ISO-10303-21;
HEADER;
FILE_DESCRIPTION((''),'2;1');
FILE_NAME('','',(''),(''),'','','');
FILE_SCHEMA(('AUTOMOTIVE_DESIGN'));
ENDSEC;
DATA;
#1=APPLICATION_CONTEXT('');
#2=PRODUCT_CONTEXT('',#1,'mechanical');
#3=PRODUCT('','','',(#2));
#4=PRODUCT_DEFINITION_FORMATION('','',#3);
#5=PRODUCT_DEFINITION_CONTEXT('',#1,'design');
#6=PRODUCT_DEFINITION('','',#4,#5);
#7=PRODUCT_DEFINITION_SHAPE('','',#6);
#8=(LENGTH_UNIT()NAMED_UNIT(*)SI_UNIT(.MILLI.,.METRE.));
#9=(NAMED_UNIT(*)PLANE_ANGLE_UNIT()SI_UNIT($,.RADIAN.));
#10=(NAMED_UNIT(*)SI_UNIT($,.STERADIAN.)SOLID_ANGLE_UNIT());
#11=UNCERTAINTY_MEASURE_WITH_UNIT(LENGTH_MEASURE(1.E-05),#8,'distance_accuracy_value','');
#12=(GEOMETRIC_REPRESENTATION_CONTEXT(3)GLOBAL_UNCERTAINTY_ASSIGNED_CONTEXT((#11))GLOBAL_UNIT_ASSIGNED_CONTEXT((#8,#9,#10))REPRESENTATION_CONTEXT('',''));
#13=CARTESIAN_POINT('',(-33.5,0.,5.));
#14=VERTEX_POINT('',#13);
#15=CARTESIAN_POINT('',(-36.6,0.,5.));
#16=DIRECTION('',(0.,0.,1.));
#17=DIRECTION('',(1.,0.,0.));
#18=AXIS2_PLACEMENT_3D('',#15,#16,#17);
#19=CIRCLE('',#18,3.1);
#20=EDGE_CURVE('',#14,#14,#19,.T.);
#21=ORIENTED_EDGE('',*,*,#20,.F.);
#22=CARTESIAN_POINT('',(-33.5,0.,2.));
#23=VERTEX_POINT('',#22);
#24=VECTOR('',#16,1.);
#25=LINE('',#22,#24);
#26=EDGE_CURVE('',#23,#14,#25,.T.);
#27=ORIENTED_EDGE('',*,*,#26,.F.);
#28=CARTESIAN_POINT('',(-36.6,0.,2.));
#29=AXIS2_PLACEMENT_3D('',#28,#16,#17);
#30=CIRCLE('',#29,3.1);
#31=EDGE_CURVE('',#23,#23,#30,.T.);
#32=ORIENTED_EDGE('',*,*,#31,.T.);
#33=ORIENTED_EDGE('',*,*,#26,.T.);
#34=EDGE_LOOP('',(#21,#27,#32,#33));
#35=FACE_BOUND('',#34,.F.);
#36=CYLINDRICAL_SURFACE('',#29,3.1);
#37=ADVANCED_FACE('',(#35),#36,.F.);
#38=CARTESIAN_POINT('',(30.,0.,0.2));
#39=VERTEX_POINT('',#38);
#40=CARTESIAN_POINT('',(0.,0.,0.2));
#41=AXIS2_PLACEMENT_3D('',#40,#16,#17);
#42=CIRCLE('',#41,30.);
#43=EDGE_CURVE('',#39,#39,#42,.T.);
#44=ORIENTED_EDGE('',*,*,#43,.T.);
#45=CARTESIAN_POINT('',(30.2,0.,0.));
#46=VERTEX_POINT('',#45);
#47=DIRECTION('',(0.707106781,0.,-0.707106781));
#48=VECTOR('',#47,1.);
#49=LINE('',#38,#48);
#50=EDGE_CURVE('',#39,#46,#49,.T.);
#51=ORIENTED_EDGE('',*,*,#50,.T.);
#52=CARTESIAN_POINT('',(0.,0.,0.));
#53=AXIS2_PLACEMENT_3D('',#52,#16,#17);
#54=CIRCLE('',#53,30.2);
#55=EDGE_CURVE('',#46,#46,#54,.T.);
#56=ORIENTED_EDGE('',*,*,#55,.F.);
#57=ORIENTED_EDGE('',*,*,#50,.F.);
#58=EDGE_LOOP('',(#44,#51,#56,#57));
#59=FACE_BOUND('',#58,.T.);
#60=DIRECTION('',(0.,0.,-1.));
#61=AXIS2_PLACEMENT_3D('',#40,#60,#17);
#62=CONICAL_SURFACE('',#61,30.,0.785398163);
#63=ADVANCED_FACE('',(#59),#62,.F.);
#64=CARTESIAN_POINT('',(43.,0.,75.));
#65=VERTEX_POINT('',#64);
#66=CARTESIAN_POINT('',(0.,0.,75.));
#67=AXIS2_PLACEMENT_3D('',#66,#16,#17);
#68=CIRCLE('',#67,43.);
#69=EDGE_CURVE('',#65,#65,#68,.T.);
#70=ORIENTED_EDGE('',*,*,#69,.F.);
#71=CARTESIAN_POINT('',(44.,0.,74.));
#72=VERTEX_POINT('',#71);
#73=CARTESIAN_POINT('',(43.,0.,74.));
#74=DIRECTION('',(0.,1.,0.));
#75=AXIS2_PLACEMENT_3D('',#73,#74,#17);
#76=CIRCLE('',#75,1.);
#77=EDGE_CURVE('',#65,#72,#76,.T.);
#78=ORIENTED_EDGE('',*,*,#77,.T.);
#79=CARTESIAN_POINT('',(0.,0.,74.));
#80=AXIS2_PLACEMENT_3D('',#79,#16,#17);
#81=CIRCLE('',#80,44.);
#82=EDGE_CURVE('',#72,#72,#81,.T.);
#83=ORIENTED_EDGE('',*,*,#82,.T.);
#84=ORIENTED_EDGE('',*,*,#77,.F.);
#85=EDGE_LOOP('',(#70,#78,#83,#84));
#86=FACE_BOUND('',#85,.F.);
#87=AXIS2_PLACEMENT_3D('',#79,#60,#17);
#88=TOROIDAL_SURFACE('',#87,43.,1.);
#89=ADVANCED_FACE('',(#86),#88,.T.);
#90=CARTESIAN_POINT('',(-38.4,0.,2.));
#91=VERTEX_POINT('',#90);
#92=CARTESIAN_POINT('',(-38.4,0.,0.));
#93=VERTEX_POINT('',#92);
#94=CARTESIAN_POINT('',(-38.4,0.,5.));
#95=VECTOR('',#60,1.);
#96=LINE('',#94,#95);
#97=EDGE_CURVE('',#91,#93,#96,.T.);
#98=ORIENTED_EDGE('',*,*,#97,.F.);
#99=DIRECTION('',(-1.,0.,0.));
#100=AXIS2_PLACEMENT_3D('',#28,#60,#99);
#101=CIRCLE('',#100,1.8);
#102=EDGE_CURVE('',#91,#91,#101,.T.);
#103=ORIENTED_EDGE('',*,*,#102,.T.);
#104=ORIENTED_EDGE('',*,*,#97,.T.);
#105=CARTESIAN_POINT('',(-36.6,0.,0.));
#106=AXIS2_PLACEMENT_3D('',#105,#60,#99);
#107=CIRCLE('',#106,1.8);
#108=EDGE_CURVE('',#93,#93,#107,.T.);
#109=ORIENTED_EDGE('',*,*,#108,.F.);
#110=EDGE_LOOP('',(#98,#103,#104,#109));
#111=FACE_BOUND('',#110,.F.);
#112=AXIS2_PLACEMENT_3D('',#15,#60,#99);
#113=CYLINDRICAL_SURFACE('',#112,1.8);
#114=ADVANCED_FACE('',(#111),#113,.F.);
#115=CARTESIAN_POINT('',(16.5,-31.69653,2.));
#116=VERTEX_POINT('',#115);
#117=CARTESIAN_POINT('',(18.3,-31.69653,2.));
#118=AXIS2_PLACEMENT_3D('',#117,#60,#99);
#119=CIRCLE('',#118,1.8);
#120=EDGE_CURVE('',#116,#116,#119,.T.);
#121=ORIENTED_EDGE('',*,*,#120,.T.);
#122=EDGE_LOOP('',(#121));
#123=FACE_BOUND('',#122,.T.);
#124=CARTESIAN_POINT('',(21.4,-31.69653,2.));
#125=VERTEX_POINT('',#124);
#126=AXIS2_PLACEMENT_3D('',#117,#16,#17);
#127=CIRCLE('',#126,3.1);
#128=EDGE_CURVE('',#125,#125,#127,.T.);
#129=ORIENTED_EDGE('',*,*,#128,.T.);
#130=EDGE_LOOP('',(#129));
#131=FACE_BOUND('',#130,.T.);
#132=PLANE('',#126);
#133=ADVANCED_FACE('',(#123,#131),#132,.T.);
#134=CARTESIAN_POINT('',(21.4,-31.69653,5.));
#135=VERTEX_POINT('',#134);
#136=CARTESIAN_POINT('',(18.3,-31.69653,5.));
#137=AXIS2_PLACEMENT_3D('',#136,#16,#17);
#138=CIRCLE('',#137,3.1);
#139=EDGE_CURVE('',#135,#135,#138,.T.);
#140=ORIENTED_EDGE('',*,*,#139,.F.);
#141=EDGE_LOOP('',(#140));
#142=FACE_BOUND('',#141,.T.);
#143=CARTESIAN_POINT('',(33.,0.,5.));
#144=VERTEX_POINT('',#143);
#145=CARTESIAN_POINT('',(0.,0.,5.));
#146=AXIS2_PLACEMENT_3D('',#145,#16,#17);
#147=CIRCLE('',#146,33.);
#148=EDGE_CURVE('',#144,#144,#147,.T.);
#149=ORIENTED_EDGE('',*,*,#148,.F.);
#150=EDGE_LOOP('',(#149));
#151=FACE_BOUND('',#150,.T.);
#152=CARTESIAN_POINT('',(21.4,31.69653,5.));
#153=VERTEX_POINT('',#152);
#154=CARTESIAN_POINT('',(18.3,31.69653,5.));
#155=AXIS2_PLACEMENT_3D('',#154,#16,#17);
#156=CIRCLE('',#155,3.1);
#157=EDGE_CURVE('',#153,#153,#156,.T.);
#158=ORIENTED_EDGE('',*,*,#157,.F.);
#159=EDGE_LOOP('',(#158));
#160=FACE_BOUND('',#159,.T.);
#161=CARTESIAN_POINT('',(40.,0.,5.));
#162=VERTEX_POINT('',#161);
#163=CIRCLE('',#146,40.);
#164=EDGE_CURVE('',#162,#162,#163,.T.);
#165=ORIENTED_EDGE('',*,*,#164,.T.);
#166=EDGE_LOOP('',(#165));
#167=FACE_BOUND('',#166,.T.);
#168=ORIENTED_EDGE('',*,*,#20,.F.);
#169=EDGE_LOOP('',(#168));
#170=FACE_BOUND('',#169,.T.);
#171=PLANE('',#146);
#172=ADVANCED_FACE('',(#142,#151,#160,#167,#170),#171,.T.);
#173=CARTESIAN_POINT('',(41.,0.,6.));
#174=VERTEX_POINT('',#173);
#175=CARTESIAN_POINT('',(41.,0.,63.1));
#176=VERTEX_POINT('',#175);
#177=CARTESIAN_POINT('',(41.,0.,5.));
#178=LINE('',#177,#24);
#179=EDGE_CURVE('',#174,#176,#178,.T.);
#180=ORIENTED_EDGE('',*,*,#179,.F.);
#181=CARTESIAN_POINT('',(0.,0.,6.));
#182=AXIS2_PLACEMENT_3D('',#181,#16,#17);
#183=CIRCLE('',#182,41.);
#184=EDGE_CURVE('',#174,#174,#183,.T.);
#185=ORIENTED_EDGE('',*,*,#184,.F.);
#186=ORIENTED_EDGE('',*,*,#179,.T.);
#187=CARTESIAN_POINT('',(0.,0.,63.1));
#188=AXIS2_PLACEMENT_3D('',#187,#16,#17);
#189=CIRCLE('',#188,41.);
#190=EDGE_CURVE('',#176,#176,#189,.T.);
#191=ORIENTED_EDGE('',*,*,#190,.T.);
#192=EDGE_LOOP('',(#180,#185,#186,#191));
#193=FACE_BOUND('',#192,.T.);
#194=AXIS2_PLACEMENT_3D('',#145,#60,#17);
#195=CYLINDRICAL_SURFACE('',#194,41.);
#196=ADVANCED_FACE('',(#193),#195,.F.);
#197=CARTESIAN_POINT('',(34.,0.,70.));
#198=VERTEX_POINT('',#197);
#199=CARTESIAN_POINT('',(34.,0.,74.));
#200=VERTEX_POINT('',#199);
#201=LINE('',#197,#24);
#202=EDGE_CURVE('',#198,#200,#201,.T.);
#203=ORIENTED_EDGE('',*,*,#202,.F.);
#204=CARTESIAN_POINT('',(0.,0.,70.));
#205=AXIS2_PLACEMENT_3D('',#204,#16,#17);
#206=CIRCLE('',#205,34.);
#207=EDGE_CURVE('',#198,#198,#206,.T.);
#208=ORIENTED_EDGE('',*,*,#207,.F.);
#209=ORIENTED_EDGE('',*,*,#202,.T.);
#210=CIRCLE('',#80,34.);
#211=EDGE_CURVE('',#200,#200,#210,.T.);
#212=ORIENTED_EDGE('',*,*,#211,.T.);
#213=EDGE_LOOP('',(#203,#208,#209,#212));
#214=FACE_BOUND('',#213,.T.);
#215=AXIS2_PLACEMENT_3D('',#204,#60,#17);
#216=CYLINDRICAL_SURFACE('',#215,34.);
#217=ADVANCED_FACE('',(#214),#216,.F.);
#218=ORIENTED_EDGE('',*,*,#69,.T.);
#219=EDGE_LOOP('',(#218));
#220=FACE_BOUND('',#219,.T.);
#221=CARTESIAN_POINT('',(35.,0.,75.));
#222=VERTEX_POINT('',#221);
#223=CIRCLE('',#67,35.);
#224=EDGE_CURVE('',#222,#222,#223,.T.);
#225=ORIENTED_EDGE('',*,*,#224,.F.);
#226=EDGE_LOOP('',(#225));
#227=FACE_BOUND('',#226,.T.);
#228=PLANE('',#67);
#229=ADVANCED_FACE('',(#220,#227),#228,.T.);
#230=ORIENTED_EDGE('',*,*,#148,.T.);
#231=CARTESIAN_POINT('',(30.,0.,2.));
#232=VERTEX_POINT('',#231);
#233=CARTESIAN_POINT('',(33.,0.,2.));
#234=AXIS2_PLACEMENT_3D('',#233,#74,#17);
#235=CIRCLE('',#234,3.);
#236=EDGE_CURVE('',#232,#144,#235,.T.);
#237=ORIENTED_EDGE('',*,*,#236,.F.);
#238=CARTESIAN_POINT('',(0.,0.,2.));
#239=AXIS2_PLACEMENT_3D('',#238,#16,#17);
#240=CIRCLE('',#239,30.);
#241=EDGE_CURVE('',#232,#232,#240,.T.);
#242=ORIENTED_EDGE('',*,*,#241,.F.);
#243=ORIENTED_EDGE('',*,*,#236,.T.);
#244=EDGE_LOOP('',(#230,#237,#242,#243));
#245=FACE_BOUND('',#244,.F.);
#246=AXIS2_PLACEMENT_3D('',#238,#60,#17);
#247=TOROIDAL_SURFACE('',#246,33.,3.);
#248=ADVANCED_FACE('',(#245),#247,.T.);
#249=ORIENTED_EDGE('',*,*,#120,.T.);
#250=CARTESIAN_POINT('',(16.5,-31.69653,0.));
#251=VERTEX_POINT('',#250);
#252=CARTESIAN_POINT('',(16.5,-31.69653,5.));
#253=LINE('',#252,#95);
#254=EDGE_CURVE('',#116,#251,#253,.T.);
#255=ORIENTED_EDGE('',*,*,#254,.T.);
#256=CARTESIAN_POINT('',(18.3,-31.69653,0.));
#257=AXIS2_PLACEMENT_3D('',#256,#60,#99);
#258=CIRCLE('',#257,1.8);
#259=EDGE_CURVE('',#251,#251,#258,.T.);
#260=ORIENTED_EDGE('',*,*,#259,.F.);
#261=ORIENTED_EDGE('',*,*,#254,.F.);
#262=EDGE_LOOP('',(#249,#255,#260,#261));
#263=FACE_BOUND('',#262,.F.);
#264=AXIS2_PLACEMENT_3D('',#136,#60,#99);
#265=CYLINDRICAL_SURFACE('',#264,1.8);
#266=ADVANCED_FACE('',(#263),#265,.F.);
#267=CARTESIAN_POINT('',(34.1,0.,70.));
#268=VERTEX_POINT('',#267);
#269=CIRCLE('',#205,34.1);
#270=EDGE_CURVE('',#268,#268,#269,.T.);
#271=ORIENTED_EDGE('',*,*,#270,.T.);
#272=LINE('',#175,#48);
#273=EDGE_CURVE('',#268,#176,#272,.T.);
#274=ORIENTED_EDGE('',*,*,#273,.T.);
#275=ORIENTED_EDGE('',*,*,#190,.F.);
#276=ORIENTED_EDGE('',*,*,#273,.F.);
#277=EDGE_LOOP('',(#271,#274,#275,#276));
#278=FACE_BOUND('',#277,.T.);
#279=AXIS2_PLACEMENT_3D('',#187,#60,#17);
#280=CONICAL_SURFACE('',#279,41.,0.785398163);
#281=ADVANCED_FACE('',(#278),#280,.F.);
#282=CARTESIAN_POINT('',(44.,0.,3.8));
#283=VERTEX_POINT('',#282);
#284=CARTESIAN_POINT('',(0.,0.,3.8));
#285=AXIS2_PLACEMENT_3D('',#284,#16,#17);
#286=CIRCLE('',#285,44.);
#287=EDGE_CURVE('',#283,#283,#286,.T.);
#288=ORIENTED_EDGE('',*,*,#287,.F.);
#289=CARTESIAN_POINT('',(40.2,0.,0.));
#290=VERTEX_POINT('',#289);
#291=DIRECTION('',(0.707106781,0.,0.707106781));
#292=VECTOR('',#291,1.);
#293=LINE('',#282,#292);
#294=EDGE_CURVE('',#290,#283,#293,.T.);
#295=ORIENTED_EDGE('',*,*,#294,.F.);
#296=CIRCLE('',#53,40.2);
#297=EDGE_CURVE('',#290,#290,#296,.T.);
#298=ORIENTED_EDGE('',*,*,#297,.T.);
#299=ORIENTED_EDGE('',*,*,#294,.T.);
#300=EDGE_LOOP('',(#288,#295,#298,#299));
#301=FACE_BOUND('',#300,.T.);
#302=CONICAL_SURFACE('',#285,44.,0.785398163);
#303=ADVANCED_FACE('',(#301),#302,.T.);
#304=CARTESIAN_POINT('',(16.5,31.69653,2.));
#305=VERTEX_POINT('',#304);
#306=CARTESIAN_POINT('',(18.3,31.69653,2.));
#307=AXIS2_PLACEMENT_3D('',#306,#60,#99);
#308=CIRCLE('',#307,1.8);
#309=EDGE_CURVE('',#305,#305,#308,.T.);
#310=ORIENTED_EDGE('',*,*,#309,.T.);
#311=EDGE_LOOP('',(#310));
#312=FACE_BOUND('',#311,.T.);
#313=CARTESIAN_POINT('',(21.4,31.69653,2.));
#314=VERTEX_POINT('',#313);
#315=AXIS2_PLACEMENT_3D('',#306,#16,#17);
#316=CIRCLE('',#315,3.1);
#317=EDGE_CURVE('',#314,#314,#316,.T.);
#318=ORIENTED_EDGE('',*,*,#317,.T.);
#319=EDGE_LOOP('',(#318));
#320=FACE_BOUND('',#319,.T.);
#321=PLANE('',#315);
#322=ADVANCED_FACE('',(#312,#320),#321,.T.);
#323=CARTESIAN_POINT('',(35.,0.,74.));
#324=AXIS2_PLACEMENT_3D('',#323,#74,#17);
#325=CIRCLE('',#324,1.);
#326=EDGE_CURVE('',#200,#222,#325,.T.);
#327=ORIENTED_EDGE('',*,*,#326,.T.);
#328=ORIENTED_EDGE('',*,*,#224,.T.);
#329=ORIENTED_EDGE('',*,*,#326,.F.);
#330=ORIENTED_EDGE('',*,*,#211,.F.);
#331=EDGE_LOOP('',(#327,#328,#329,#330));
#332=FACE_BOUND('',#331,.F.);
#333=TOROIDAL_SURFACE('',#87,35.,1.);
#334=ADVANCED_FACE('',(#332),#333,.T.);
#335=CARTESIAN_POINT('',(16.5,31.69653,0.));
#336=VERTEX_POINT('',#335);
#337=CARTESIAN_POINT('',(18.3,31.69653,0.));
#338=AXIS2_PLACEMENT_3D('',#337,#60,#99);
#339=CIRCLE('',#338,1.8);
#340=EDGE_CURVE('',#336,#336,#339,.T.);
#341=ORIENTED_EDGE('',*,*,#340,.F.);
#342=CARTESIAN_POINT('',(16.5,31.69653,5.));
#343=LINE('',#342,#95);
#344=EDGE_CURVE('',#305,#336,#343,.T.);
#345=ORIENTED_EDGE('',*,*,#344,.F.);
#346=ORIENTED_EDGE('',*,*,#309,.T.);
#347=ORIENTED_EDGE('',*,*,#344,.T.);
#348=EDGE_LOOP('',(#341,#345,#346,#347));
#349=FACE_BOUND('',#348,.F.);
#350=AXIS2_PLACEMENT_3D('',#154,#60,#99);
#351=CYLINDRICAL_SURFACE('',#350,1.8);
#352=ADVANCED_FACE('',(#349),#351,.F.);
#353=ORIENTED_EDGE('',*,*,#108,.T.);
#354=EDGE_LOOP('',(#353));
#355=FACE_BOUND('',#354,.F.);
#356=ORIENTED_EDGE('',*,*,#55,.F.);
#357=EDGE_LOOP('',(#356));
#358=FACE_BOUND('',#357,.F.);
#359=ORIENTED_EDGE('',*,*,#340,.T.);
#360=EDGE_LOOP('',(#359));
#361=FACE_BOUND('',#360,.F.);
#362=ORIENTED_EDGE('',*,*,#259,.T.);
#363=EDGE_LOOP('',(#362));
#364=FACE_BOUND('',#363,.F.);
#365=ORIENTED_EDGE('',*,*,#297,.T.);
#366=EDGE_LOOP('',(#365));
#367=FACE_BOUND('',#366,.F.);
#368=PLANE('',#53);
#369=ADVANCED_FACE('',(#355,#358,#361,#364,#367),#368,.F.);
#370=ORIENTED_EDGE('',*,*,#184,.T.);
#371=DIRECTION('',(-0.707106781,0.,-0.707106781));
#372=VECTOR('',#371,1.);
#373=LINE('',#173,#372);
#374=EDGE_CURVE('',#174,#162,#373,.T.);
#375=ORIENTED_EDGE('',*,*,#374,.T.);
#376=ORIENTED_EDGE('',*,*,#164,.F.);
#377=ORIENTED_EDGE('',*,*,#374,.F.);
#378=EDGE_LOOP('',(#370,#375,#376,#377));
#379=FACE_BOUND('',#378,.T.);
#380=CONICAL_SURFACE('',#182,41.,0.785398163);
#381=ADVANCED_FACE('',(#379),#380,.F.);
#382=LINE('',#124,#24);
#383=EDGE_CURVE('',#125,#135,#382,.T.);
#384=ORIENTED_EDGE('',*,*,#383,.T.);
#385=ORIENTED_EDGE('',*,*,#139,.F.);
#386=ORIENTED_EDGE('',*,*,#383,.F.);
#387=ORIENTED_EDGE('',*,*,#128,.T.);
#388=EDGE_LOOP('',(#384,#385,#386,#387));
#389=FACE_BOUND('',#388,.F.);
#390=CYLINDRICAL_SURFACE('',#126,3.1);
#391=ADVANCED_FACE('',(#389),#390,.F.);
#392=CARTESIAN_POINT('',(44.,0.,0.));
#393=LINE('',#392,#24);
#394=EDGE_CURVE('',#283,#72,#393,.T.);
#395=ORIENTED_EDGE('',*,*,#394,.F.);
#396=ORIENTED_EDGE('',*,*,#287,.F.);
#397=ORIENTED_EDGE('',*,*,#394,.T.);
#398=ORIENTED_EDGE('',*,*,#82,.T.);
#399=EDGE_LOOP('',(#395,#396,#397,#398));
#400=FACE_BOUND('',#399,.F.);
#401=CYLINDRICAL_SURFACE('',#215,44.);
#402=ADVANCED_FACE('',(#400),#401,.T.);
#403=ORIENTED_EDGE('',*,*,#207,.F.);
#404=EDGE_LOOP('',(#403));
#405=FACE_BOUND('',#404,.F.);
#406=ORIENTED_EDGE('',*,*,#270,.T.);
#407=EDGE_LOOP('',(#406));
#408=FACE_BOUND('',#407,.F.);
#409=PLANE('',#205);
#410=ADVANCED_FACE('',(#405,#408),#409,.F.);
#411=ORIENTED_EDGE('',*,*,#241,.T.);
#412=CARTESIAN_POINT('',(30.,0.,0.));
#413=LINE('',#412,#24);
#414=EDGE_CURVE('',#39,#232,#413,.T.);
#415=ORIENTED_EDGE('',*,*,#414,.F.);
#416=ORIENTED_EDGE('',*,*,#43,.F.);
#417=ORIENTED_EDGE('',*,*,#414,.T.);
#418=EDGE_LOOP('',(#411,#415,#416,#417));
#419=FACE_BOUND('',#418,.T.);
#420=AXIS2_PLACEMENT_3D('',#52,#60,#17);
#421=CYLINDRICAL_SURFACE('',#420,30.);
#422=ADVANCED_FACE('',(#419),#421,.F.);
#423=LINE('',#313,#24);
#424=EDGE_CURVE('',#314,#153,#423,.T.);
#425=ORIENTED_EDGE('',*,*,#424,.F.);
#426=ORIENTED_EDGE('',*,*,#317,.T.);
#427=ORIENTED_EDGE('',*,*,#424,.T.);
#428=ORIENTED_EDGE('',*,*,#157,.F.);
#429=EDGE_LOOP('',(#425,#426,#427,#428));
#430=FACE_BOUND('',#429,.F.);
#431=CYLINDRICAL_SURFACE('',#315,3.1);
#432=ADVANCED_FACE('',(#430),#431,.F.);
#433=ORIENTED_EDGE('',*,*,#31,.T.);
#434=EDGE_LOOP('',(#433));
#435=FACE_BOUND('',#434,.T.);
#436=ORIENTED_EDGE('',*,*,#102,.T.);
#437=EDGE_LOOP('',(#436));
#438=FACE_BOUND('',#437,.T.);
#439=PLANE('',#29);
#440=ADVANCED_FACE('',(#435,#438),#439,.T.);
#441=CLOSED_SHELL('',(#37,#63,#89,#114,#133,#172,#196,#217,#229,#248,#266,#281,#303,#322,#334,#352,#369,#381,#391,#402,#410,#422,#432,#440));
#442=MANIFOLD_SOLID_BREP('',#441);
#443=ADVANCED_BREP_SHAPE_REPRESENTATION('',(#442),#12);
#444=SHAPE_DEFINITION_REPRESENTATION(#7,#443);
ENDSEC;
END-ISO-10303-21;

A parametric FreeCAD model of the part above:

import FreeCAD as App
import Part
import Sketcher
from FreeCAD import Vector
Q = App.Units.Quantity


def edges_at(feature, points):
    """Names of the edges that pass closest to the given points."""
    edges = feature.Shape.Edges
    near = lambda p: min(range(len(edges)), key=lambda i: edges[i].distToShape(Part.Vertex(*p))[0])
    return sorted({f"Edge{near(p) + 1}" for p in points})

doc = App.newDocument("Part")
body = doc.addObject("PartDesign::Body", "Body")

sketch1 = body.newObject("Sketcher::SketchObject", "Sketch")
sketch1.AttachmentSupport = (doc.getObject("XY_Plane"), [""])
sketch1.MapMode = "FlatFace"
sketch1.addGeometry(Part.Circle(Vector(0, 0, 0), Vector(0, 0, 1), 44), False)
sketch1.addGeometry(Part.Circle(Vector(0, 0, 0), Vector(0, 0, 1), 30), False)
sketch1.addConstraint(Sketcher.Constraint("Coincident", 0, 3, -1, 1))
sketch1.addConstraint(Sketcher.Constraint("Coincident", 1, 3, -1, 1))
sketch1.addConstraint(Sketcher.Constraint("Diameter", 0, Q("88 mm")))
sketch1.addConstraint(Sketcher.Constraint("Diameter", 1, Q("60 mm")))
pad1 = body.newObject("PartDesign::Pad", "Pad")
pad1.Profile = sketch1
pad1.Length = 5

sketch2 = body.newObject("Sketcher::SketchObject", "Sketch001")
sketch2.AttachmentSupport = (doc.getObject("XY_Plane"), [""])
sketch2.MapMode = "FlatFace"
sketch2.AttachmentOffset = App.Placement(Vector(0, 0, 5), App.Rotation())
sketch2.addGeometry(Part.Circle(Vector(0, 0, 0), Vector(0, 0, 1), 44), False)
sketch2.addGeometry(Part.Circle(Vector(0, 0, 0), Vector(0, 0, 1), 41), False)
sketch2.addConstraint(Sketcher.Constraint("Coincident", 0, 3, -1, 1))
sketch2.addConstraint(Sketcher.Constraint("Coincident", 1, 3, -1, 1))
sketch2.addConstraint(Sketcher.Constraint("Diameter", 0, Q("88 mm")))
sketch2.addConstraint(Sketcher.Constraint("Diameter", 1, Q("82 mm")))
pad2 = body.newObject("PartDesign::Pad", "Pad001")
pad2.Profile = sketch2
pad2.Length = 65

sketch3 = body.newObject("Sketcher::SketchObject", "Sketch002")
sketch3.AttachmentSupport = (doc.getObject("XY_Plane"), [""])
sketch3.MapMode = "FlatFace"
sketch3.AttachmentOffset = App.Placement(Vector(0, 0, 70), App.Rotation())
sketch3.addGeometry(Part.Circle(Vector(0, 0, 0), Vector(0, 0, 1), 44), False)
sketch3.addGeometry(Part.Circle(Vector(0, 0, 0), Vector(0, 0, 1), 34), False)
sketch3.addConstraint(Sketcher.Constraint("Coincident", 0, 3, -1, 1))
sketch3.addConstraint(Sketcher.Constraint("Coincident", 1, 3, -1, 1))
sketch3.addConstraint(Sketcher.Constraint("Diameter", 0, Q("88 mm")))
sketch3.addConstraint(Sketcher.Constraint("Diameter", 1, Q("68 mm")))
pad3 = body.newObject("PartDesign::Pad", "Pad002")
pad3.Profile = sketch3
pad3.Length = 5

sketch4 = body.newObject("Sketcher::SketchObject", "Sketch003")
sketch4.AttachmentSupport = (doc.getObject("XY_Plane"), [""])
sketch4.MapMode = "FlatFace"
sketch4.AttachmentOffset = App.Placement(Vector(0, 0, 5), App.Rotation())
sketch4.addGeometry(Part.Circle(Vector(-36.6, 0, 0), Vector(0, 0, 1), 1.8), False)
sketch4.addGeometry(Part.Circle(Vector(18.3, 31.7, 0), Vector(0, 0, 1), 1.8), False)
sketch4.addGeometry(Part.Circle(Vector(18.3, -31.7, 0), Vector(0, 0, 1), 1.8), False)
sketch4.addConstraint(Sketcher.Constraint("Equal", 0, 1))
sketch4.addConstraint(Sketcher.Constraint("Equal", 1, 2))
sketch4.addConstraint(Sketcher.Constraint("Symmetric", 1, 3, 2, 3, -1))
sketch4.addConstraint(Sketcher.Constraint("PointOnObject", 0, 3, -1))
sketch4.addConstraint(Sketcher.Constraint("Diameter", 0, Q("3.6 mm")))
sketch4.addConstraint(Sketcher.Constraint("DistanceX", 0, 3, -1, 1, Q("36.6 mm")))
sketch4.addConstraint(Sketcher.Constraint("DistanceX", -1, 1, 1, 3, Q("18.3 mm")))
sketch4.addConstraint(Sketcher.Constraint("DistanceY", -1, 1, 1, 3, Q("31.69653 mm")))
doc.recompute()
hole = body.newObject("PartDesign::Hole", "Hole")
hole.Profile = sketch4
hole.ThreadType = "None"
hole.Diameter = 3.6
hole.DepthType = "Dimension"
hole.Depth = 5
hole.DrillPoint = "Flat"
hole.HoleCutType = "Counterbore"
hole.HoleCutDiameter = 6.2
hole.HoleCutDepth = 3
doc.recompute()

chamfer = body.newObject("PartDesign::Chamfer", "Chamfer")
chamfer.Base = (hole, edges_at(hole, [(-41, 0, 70)]))
chamfer.Size = 6.9
doc.recompute()

fillet = body.newObject("PartDesign::Fillet", "Fillet")
fillet.Base = (chamfer, edges_at(chamfer, [(-34, 0, 75), (-44, 0, 75)]))
fillet.Radius = 1
doc.recompute()

chamfer2 = body.newObject("PartDesign::Chamfer", "Chamfer001")
chamfer2.Base = (fillet, edges_at(fillet, [(-41, 0, 5)]))
chamfer2.Size = 1
doc.recompute()

chamfer3 = body.newObject("PartDesign::Chamfer", "Chamfer002")
chamfer3.Base = (chamfer2, edges_at(chamfer2, [(-44, 0, 0)]))
chamfer3.Size = 3.8
doc.recompute()

fillet2 = body.newObject("PartDesign::Fillet", "Fillet001")
fillet2.Base = (chamfer3, edges_at(chamfer3, [(-30, 0, 5)]))
fillet2.Radius = 3
doc.recompute()

chamfer4 = body.newObject("PartDesign::Chamfer", "Chamfer003")
chamfer4.Base = (fillet2, edges_at(fillet2, [(-30, 0, 0)]))
chamfer4.Size = 0.2

doc.recompute()
